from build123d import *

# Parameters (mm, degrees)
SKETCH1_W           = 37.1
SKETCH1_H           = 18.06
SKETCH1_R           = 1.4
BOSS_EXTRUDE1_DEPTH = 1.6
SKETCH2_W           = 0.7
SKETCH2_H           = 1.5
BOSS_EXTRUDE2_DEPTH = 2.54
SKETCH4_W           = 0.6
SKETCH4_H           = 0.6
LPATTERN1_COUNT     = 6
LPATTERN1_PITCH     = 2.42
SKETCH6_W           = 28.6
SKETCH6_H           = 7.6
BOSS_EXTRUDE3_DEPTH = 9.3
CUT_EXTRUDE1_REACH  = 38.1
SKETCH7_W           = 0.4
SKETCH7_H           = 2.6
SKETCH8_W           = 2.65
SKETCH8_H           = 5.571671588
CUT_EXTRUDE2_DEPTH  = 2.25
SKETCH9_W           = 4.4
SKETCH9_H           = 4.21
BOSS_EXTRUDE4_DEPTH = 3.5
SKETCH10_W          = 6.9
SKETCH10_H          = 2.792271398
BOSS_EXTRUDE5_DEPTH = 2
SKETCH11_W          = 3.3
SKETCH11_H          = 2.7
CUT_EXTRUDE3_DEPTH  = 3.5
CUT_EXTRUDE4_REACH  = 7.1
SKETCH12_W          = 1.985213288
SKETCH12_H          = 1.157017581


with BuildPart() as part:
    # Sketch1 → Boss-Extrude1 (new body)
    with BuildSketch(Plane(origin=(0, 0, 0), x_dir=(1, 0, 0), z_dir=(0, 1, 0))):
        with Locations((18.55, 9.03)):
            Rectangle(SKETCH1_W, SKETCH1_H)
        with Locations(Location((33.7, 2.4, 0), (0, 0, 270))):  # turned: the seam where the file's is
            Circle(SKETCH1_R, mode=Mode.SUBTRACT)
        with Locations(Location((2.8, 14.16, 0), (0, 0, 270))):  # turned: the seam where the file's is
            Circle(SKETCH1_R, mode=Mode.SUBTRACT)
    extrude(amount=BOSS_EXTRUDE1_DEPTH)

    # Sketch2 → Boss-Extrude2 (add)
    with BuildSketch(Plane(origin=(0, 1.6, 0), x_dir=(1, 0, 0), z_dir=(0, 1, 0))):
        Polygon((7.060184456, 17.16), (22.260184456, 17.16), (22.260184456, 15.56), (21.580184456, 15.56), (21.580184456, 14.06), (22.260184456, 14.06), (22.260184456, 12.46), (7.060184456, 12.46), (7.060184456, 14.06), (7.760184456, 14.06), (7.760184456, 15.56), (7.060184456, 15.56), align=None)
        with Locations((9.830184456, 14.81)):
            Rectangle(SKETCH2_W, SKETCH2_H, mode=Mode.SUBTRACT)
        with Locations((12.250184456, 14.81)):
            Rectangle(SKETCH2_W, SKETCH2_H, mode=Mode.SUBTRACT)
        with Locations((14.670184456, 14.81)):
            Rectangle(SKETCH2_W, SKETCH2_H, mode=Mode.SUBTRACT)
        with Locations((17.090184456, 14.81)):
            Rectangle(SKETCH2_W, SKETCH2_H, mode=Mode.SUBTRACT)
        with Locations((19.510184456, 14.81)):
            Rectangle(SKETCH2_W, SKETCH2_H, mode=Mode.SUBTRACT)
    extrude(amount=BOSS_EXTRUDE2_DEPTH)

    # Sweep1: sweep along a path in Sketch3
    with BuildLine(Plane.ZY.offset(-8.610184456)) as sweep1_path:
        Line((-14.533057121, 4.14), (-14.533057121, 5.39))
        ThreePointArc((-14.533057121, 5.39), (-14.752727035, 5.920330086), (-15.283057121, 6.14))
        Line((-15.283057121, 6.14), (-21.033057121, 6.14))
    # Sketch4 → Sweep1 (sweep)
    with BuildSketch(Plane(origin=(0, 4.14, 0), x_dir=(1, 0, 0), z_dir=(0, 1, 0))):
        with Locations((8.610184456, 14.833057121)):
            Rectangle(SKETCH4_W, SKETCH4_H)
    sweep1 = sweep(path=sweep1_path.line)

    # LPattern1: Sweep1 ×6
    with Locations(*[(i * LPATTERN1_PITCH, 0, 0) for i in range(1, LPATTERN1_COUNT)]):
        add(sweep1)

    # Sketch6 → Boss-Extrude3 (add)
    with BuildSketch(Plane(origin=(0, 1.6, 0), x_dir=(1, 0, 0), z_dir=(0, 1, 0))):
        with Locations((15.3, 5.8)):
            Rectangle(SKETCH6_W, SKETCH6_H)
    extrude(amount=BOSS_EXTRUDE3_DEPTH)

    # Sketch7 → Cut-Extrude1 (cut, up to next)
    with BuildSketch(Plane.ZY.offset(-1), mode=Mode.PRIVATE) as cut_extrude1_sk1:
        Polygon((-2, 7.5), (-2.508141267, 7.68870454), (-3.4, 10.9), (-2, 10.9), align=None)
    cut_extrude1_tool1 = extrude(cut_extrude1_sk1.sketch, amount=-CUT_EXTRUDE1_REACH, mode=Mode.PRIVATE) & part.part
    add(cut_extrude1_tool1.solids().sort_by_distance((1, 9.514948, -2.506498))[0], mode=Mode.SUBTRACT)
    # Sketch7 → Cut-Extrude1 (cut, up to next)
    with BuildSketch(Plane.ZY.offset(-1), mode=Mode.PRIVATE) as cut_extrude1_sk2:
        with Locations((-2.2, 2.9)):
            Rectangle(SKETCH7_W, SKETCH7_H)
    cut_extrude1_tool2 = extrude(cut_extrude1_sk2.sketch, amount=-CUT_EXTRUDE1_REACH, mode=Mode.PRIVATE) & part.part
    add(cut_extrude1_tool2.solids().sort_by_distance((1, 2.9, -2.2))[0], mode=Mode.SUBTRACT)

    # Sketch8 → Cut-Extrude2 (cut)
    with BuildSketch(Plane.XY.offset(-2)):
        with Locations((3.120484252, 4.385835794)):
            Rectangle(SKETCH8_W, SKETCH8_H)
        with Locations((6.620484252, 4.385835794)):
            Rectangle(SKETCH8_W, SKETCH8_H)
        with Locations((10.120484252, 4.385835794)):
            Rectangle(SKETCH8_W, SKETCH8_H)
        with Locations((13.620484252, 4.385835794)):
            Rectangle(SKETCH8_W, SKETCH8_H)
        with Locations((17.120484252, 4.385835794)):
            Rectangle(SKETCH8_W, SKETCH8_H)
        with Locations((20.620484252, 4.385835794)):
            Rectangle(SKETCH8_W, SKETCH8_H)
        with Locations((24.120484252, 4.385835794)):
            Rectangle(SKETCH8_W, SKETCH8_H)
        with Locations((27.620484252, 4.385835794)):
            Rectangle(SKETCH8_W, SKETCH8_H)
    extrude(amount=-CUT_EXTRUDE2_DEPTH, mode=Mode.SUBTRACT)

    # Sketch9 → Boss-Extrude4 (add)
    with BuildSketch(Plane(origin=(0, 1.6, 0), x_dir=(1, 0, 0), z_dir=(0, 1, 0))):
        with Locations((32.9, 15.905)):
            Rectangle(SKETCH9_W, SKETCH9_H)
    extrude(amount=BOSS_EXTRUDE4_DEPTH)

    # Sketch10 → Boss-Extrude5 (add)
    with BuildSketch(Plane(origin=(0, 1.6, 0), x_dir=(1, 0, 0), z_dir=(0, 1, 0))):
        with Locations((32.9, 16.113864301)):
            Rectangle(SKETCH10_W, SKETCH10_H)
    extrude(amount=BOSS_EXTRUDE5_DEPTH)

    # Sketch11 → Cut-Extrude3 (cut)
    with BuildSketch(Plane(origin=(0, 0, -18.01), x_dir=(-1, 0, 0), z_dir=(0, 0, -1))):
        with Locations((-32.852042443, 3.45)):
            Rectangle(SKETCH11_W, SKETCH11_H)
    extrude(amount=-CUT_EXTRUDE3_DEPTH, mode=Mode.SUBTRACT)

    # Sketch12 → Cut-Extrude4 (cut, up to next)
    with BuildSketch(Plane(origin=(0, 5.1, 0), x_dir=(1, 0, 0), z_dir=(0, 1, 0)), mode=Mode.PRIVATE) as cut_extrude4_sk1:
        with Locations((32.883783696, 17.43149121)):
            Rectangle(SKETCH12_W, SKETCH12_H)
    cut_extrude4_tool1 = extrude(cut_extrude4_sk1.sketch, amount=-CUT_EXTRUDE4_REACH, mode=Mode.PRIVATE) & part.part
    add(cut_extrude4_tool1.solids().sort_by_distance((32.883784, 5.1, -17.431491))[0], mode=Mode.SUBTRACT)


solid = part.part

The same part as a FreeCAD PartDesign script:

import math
import FreeCAD as App
import Part
import Sketcher
Q = App.Units.Quantity


def add_polygon(sketch, points):
    """Adds a closed chain of lines whose ends are joined by coincident constraints."""
    first, n = sketch.GeometryCount, len(points)
    for a, b in zip(points, points[1:] + points[:1]):
        sketch.addGeometry(Part.LineSegment(App.Vector(*a, 0), App.Vector(*b, 0)), False)
    for i in range(n):
        sketch.addConstraint(Sketcher.Constraint("Coincident", first + i, 2, first + (i + 1) % n, 1))

doc = App.newDocument("Part")
body = doc.addObject("PartDesign::Body", "Body")

sketch1 = body.newObject("Sketcher::SketchObject", "Sketch")
sketch1.AttachmentSupport = (doc.getObject("XZ_Plane"), [""])
sketch1.MapMode = "FlatFace"
add_polygon(sketch1, [(0, -18.06), (0, 0), (37.1, 0), (37.1, -18.06)])
sketch1.addGeometry(Part.Circle(App.Vector(33.7, -2.4, 0), App.Vector(0, 0, 1), 1.4), False)
sketch1.addGeometry(Part.Circle(App.Vector(2.8, -14.16, 0), App.Vector(0, 0, 1), 1.4), False)
sketch1.addConstraint([
    Sketcher.Constraint("Vertical", 0),
    Sketcher.Constraint("Horizontal", 1),
    Sketcher.Constraint("Vertical", 2),
    Sketcher.Constraint("Horizontal", 3),
    Sketcher.Constraint("Coincident", 0, 2, -1, 1),
    Sketcher.Constraint("Equal", 4, 5),
    Sketcher.Constraint("Diameter", 4, Q("2.8 mm")),
    Sketcher.Constraint("DistanceX", 1, 1, 1, 2, Q("37.1 mm")),
    Sketcher.Constraint("DistanceY", 0, 1, 0, 2, Q("18.06 mm")),
    Sketcher.Constraint("DistanceX", -1, 1, 4, 3, Q("33.7 mm")),
    Sketcher.Constraint("DistanceY", 4, 3, -1, 1, Q("2.4 mm")),
    Sketcher.Constraint("DistanceX", -1, 1, 5, 3, Q("2.8 mm")),
    Sketcher.Constraint("DistanceY", 2, 2, 5, 3, Q("3.9 mm")),
])
pad1 = body.newObject("PartDesign::Pad", "Pad")
pad1.Profile = sketch1
pad1.Length = 1.6
pad1.Reversed = True

sketch2 = body.newObject("Sketcher::SketchObject", "Sketch001")
sketch2.AttachmentSupport = (doc.getObject("XZ_Plane"), [""])
sketch2.MapMode = "FlatFace"
sketch2.AttachmentOffset = App.Placement(App.Vector(0, 0, -1.6), App.Rotation())
add_polygon(sketch2, [(22.260184, -17.16), (7.060184, -17.16), (7.060184, -15.56), (7.760184, -15.56), (7.760184, -14.06), (7.060184, -14.06), (7.060184, -12.46), (22.260184, -12.46), (22.260184, -14.06), (21.580184, -14.06), (21.580184, -15.56), (22.260184, -15.56)])
add_polygon(sketch2, [(19.160184, -14.06), (19.160184, -15.56), (19.860184, -15.56), (19.860184, -14.06)])
add_polygon(sketch2, [(16.740184, -14.06), (16.740184, -15.56), (17.440184, -15.56), (17.440184, -14.06)])
add_polygon(sketch2, [(14.320184, -14.06), (14.320184, -15.56), (15.020184, -15.56), (15.020184, -14.06)])
add_polygon(sketch2, [(11.900184, -14.06), (11.900184, -15.56), (12.600184, -15.56), (12.600184, -14.06)])
add_polygon(sketch2, [(9.480184, -14.06), (9.480184, -15.56), (10.180184, -15.56), (10.180184, -14.06)])
sketch2.addConstraint([
    Sketcher.Constraint("Horizontal", 0),
    Sketcher.Constraint("Vertical", 1),
    Sketcher.Constraint("Horizontal", 2),
    Sketcher.Constraint("Vertical", 3),
    Sketcher.Constraint("Horizontal", 4),
    Sketcher.Constraint("Vertical", 5),
    Sketcher.Constraint("Horizontal", 6),
    Sketcher.Constraint("Vertical", 7),
    Sketcher.Constraint("Horizontal", 8),
    Sketcher.Constraint("Vertical", 9),
    Sketcher.Constraint("Horizontal", 10),
    Sketcher.Constraint("Vertical", 11),
    Sketcher.Constraint("Vertical", 12),
    Sketcher.Constraint("Horizontal", 13),
    Sketcher.Constraint("Vertical", 14),
    Sketcher.Constraint("Horizontal", 15),
    Sketcher.Constraint("Vertical", 16),
    Sketcher.Constraint("Horizontal", 17),
    Sketcher.Constraint("Vertical", 18),
    Sketcher.Constraint("Horizontal", 19),
    Sketcher.Constraint("Vertical", 20),
    Sketcher.Constraint("Horizontal", 21),
    Sketcher.Constraint("Vertical", 22),
    Sketcher.Constraint("Horizontal", 23),
    Sketcher.Constraint("Vertical", 24),
    Sketcher.Constraint("Horizontal", 25),
    Sketcher.Constraint("Vertical", 26),
    Sketcher.Constraint("Horizontal", 27),
    Sketcher.Constraint("Vertical", 28),
    Sketcher.Constraint("Horizontal", 29),
    Sketcher.Constraint("Vertical", 30),
    Sketcher.Constraint("Horizontal", 31),
    Sketcher.Constraint("Horizontal", 4, 2, 7, 2),
    Sketcher.Constraint("Horizontal", 2, 2, 9, 2),
    Sketcher.Constraint("Horizontal", 10, 2, 12, 2),
    Sketcher.Constraint("Horizontal", 8, 2, 14, 2),
    Sketcher.Constraint("Horizontal", 13, 2, 16, 2),
    Sketcher.Constraint("Horizontal", 15, 2, 18, 2),
    Sketcher.Constraint("Horizontal", 17, 2, 20, 2),
    Sketcher.Constraint("Horizontal", 19, 2, 22, 2),
    Sketcher.Constraint("Horizontal", 21, 2, 24, 2),
    Sketcher.Constraint("Horizontal", 23, 2, 26, 2),
    Sketcher.Constraint("Horizontal", 25, 2, 28, 2),
    Sketcher.Constraint("Horizontal", 27, 2, 30, 2),
    Sketcher.Constraint("Vertical", 1, 2, 4, 2),
    Sketcher.Constraint("Vertical", 7, 2, 10, 2),
    Sketcher.Constraint("Equal", 4, 13),
    Sketcher.Constraint("Equal", 15, 17),
    Sketcher.Constraint("Equal", 19, 21),
    Sketcher.Constraint("Equal", 23, 25),
    Sketcher.Constraint("Equal", 27, 29),
    Sketcher.Constraint("Equal", 1, 5),
    Sketcher.Constraint("DistanceX", 0, 2, 0, 1, Q("15.2 mm")),
    Sketcher.Constraint("DistanceX", 2, 1, 2, 2, Q("0.7 mm")),
    Sketcher.Constraint("DistanceY", 1, 1, 1, 2, Q("1.6 mm")),
    Sketcher.Constraint("DistanceY", 3, 1, 3, 2, Q("1.5 mm")),
    Sketcher.Constraint("DistanceX", 8, 2, 8, 1, Q("0.68 mm")),
    Sketcher.Constraint("DistanceX", 12, 2, 10, 2, Q("3.1 mm")),
    Sketcher.Constraint("DistanceY", 0, 2, -1, 1, Q("17.16 mm")),
    Sketcher.Constraint("DistanceX", 16, 2, 12, 2, Q("2.42 mm")),
    Sketcher.Constraint("DistanceX", 20, 2, 16, 2, Q("2.42 mm")),
    Sketcher.Constraint("DistanceX", 24, 2, 20, 2, Q("2.42 mm")),
    Sketcher.Constraint("DistanceX", 2, 2, 28, 2, Q("1.72 mm")),
    Sketcher.Constraint("DistanceX", -1, 1, 0, 2, Q("7.060184 mm")),
])
pad2 = body.newObject("PartDesign::Pad", "Pad001")
pad2.Profile = sketch2
pad2.Length = 2.54
pad2.Reversed = True

sketch3 = body.newObject("Sketcher::SketchObject", "Sketch002")
sketch3.AttachmentSupport = (doc.getObject("XZ_Plane"), [""])
sketch3.MapMode = "FlatFace"
sketch3.AttachmentOffset = App.Placement(App.Vector(0, 0, -4.14), App.Rotation())
add_polygon(sketch3, [(8.310184, -15.133057), (8.310184, -14.533057), (8.910184, -14.533057), (8.910184, -15.133057)])
sketch3.addConstraint([
    Sketcher.Constraint("Vertical", 0),
    Sketcher.Constraint("Horizontal", 1),
    Sketcher.Constraint("Vertical", 2),
    Sketcher.Constraint("Horizontal", 3),
    Sketcher.Constraint("Equal", 3, 0),
    Sketcher.Constraint("DistanceX", 1, 1, 1, 2, Q("0.6 mm")),
    Sketcher.Constraint("DistanceX", -1, 1, 0, 2, Q("8.310184 mm")),
    Sketcher.Constraint("DistanceY", 0, 2, -1, 1, Q("14.533057 mm")),
])

sketch4 = body.newObject("Sketcher::SketchObject", "Sketch003")
sketch4.AttachmentSupport = (doc.getObject("YZ_Plane"), [""])
sketch4.MapMode = "FlatFace"
sketch4.AttachmentOffset = App.Placement(App.Vector(0, 0, 8.610184), App.Rotation())
sketch4.addGeometry([
    Part.LineSegment(App.Vector(4.14, -14.533057, 0), App.Vector(5.39, -14.533057, 0)),
    Part.ArcOfCircle(Part.Circle(App.Vector(5.39, -15.283057, 0), App.Vector(0, 0, 1), 0.75), math.radians(0), math.radians(90)),
    Part.LineSegment(App.Vector(6.14, -15.283057, 0), App.Vector(6.14, -21.033057, 0)),
], False)
sketch4.addConstraint([
    Sketcher.Constraint("Tangent", 0, 2, 1, 2),
    Sketcher.Constraint("Tangent", 1, 1, 2, 1),
    Sketcher.Constraint("Horizontal", 0),
    Sketcher.Constraint("Vertical", 2),
    Sketcher.Constraint("Radius", 1, Q("0.75 mm")),
    Sketcher.Constraint("DistanceX", 0, 1, 1, 1, Q("2 mm")),
    Sketcher.Constraint("DistanceY", 2, 2, 2, 1, Q("5.75 mm")),
    Sketcher.Constraint("DistanceX", -1, 1, 1, 3, Q("5.39 mm")),
    Sketcher.Constraint("DistanceY", 1, 3, -1, 1, Q("15.283057 mm")),
])
doc.recompute()

additivepipe = body.newObject("PartDesign::AdditivePipe", "AdditivePipe")
additivepipe.Profile = sketch3
additivepipe.Spine = (sketch4, ["Edge1", "Edge2", "Edge3"])
doc.recompute()

linearpattern = body.newObject("PartDesign::LinearPattern", "LinearPattern")
linearpattern.Originals = [additivepipe]
linearpattern.Direction = (doc.getObject("X_Axis"), [""])
linearpattern.Mode = "offset"
linearpattern.Offset = 2.42
linearpattern.Occurrences = 6
body.Tip = linearpattern

sketch5 = body.newObject("Sketcher::SketchObject", "Sketch004")
sketch5.AttachmentSupport = (doc.getObject("XZ_Plane"), [""])
sketch5.MapMode = "FlatFace"
sketch5.AttachmentOffset = App.Placement(App.Vector(0, 0, -1.6), App.Rotation())
add_polygon(sketch5, [(1, -9.6), (1, -2), (29.6, -2), (29.6, -9.6)])
sketch5.addConstraint([
    Sketcher.Constraint("Vertical", 0),
    Sketcher.Constraint("Horizontal", 1),
    Sketcher.Constraint("Vertical", 2),
    Sketcher.Constraint("Horizontal", 3),
    Sketcher.Constraint("DistanceX", 1, 1, 1, 2, Q("28.6 mm")),
    Sketcher.Constraint("DistanceY", 0, 1, 0, 2, Q("7.6 mm")),
    Sketcher.Constraint("DistanceX", -1, 1, 0, 2, Q("1 mm")),
    Sketcher.Constraint("DistanceY", 0, 2, -1, 1, Q("2 mm")),
])
pad3 = body.newObject("PartDesign::Pad", "Pad002")
pad3.Profile = sketch5
pad3.Length = 9.3
pad3.Reversed = True

sketch6 = body.newObject("Sketcher::SketchObject", "Sketch005")
sketch6.AttachmentSupport = (doc.getObject("YZ_Plane"), [""])
sketch6.MapMode = "FlatFace"
sketch6.AttachmentOffset = App.Placement(App.Vector(0, 0, 1), App.Rotation())
add_polygon(sketch6, [(7.688705, -2.508141), (7.5, -2), (10.9, -2), (10.9, -3.4)])
sketch6.addConstraint([
    Sketcher.Constraint("Horizontal", 1),
    Sketcher.Constraint("Vertical", 2),
    Sketcher.Constraint("DistanceX", 1, 1, 1, 2, Q("3.4 mm")),
    Sketcher.Constraint("DistanceY", 2, 2, 2, 1, Q("1.4 mm")),
    Sketcher.Constraint("DistanceY", 0, 2, -1, 1, Q("2 mm")),
    Sketcher.Constraint("DistanceX", -1, 1, 0, 2, Q("7.5 mm")),
    Sketcher.Constraint("Distance", 0, Q("0.542049 mm")),
    Sketcher.Constraint("Distance", 3, Q("3.332841 mm")),
])
pocket1 = body.newObject("PartDesign::Pocket", "Pocket")
pocket1.Profile = sketch6
pocket1.Type = "UpToFirst"
pocket1.Reversed = True

sketch7 = body.newObject("Sketcher::SketchObject", "Sketch006")
sketch7.AttachmentSupport = (doc.getObject("YZ_Plane"), [""])
sketch7.MapMode = "FlatFace"
sketch7.AttachmentOffset = App.Placement(App.Vector(0, 0, 1), App.Rotation())
add_polygon(sketch7, [(4.2, -2.4), (1.6, -2.4), (1.6, -2), (4.2, -2)])
sketch7.addConstraint([
    Sketcher.Constraint("Horizontal", 0),
    Sketcher.Constraint("Vertical", 1),
    Sketcher.Constraint("Horizontal", 2),
    Sketcher.Constraint("Vertical", 3),
    Sketcher.Constraint("DistanceX", 0, 2, 0, 1, Q("2.6 mm")),
    Sketcher.Constraint("DistanceY", 1, 1, 1, 2, Q("0.4 mm")),
    Sketcher.Constraint("DistanceY", 1, 2, -1, 1, Q("2 mm")),
    Sketcher.Constraint("DistanceX", -1, 1, 0, 2, Q("1.6 mm")),
])
pocket2 = body.newObject("PartDesign::Pocket", "Pocket001")
pocket2.Profile = sketch7
pocket2.Type = "UpToFirst"
pocket2.Reversed = True

sketch8 = body.newObject("Sketcher::SketchObject", "Sketch007")
sketch8.AttachmentSupport = (doc.getObject("XY_Plane"), [""])
sketch8.MapMode = "FlatFace"
sketch8.AttachmentOffset = App.Placement(App.Vector(0, 0, -2), App.Rotation())
add_polygon(sketch8, [(1.795484, 7.171672), (1.795484, 1.6), (4.445484, 1.6), (4.445484, 7.171672)])
add_polygon(sketch8, [(5.295484, 7.171672), (5.295484, 1.6), (7.945484, 1.6), (7.945484, 7.171672)])
add_polygon(sketch8, [(8.795484, 7.171672), (8.795484, 1.6), (11.445484, 1.6), (11.445484, 7.171672)])
add_polygon(sketch8, [(12.295484, 7.171672), (12.295484, 1.6), (14.945484, 1.6), (14.945484, 7.171672)])
add_polygon(sketch8, [(15.795484, 7.171672), (15.795484, 1.6), (18.445484, 1.6), (18.445484, 7.171672)])
add_polygon(sketch8, [(19.295484, 7.171672), (19.295484, 1.6), (21.945484, 1.6), (21.945484, 7.171672)])
add_polygon(sketch8, [(22.795484, 7.171672), (22.795484, 1.6), (25.445484, 1.6), (25.445484, 7.171672)])
add_polygon(sketch8, [(26.295484, 7.171672), (26.295484, 1.6), (28.945484, 1.6), (28.945484, 7.171672)])
sketch8.addConstraint([
    Sketcher.Constraint("Vertical", 0),
    Sketcher.Constraint("Horizontal", 1),
    Sketcher.Constraint("Vertical", 2),
    Sketcher.Constraint("Horizontal", 3),
    Sketcher.Constraint("Vertical", 4),
    Sketcher.Constraint("Horizontal", 5),
    Sketcher.Constraint("Vertical", 6),
    Sketcher.Constraint("Horizontal", 7),
    Sketcher.Constraint("Vertical", 8),
    Sketcher.Constraint("Horizontal", 9),
    Sketcher.Constraint("Vertical", 10),
    Sketcher.Constraint("Horizontal", 11),
    Sketcher.Constraint("Vertical", 12),
    Sketcher.Constraint("Horizontal", 13),
    Sketcher.Constraint("Vertical", 14),
    Sketcher.Constraint("Horizontal", 15),
    Sketcher.Constraint("Vertical", 16),
    Sketcher.Constraint("Horizontal", 17),
    Sketcher.Constraint("Vertical", 18),
    Sketcher.Constraint("Horizontal", 19),
    Sketcher.Constraint("Vertical", 20),
    Sketcher.Constraint("Horizontal", 21),
    Sketcher.Constraint("Vertical", 22),
    Sketcher.Constraint("Horizontal", 23),
    Sketcher.Constraint("Vertical", 24),
    Sketcher.Constraint("Horizontal", 25),
    Sketcher.Constraint("Vertical", 26),
    Sketcher.Constraint("Horizontal", 27),
    Sketcher.Constraint("Vertical", 28),
    Sketcher.Constraint("Horizontal", 29),
    Sketcher.Constraint("Vertical", 30),
    Sketcher.Constraint("Horizontal", 31),
    Sketcher.Constraint("Horizontal", 1, 2, 4, 2),
    Sketcher.Constraint("Horizontal", 3, 2, 6, 2),
    Sketcher.Constraint("Horizontal", 5, 2, 8, 2),
    Sketcher.Constraint("Horizontal", 7, 2, 10, 2),
    Sketcher.Constraint("Horizontal", 9, 2, 12, 2),
    Sketcher.Constraint("Horizontal", 11, 2, 14, 2),
    Sketcher.Constraint("Horizontal", 13, 2, 16, 2),
    Sketcher.Constraint("Horizontal", 15, 2, 18, 2),
    Sketcher.Constraint("Horizontal", 17, 2, 20, 2),
    Sketcher.Constraint("Horizontal", 19, 2, 22, 2),
    Sketcher.Constraint("Horizontal", 21, 2, 24, 2),
    Sketcher.Constraint("Horizontal", 23, 2, 26, 2),
    Sketcher.Constraint("Horizontal", 25, 2, 28, 2),
    Sketcher.Constraint("Horizontal", 27, 2, 30, 2),
    Sketcher.Constraint("Equal", 3, 5),
    Sketcher.Constraint("Equal", 7, 9),
    Sketcher.Constraint("Equal", 11, 13),
    Sketcher.Constraint("Equal", 15, 17),
    Sketcher.Constraint("Equal", 19, 21),
    Sketcher.Constraint("Equal", 23, 25),
    Sketcher.Constraint("Equal", 27, 29),
    Sketcher.Constraint("DistanceX", 1, 2, 9, 2, Q("7 mm")),
    Sketcher.Constraint("DistanceX", 5, 2, 13, 2, Q("7 mm")),
    Sketcher.Constraint("DistanceX", 9, 2, 17, 2, Q("7 mm")),
    Sketcher.Constraint("DistanceX", 13, 2, 21, 2, Q("7 mm")),
    Sketcher.Constraint("DistanceX", 17, 2, 25, 2, Q("7 mm")),
    Sketcher.Constraint("DistanceX", 21, 2, 29, 2, Q("7 mm")),
    Sketcher.Constraint("DistanceX", 1, 1, 1, 2, Q("2.65 mm")),
    Sketcher.Constraint("DistanceY", -1, 1, 0, 2, Q("1.6 mm")),
    Sketcher.Constraint("DistanceX", 0, 2, 4, 2, Q("3.5 mm")),
    Sketcher.Constraint("DistanceY", 0, 2, 0, 1, Q("5.571672 mm")),
    Sketcher.Constraint("DistanceX", -1, 1, 0, 2, Q("1.795484 mm")),
])
pocket3 = body.newObject("PartDesign::Pocket", "Pocket002")
pocket3.Profile = sketch8
pocket3.Length = 2.25

sketch9 = body.newObject("Sketcher::SketchObject", "Sketch008")
sketch9.AttachmentSupport = (doc.getObject("XZ_Plane"), [""])
sketch9.MapMode = "FlatFace"
sketch9.AttachmentOffset = App.Placement(App.Vector(0, 0, -1.6), App.Rotation())
add_polygon(sketch9, [(30.7, -18.01), (30.7, -13.8), (35.1, -13.8), (35.1, -18.01)])
sketch9.addConstraint([
    Sketcher.Constraint("Vertical", 0),
    Sketcher.Constraint("Horizontal", 1),
    Sketcher.Constraint("Vertical", 2),
    Sketcher.Constraint("Horizontal", 3),
    Sketcher.Constraint("DistanceX", 1, 1, 1, 2, Q("4.4 mm")),
    Sketcher.Constraint("DistanceY", 0, 1, 0, 2, Q("4.21 mm")),
    Sketcher.Constraint("DistanceX", -1, 1, 0, 2, Q("30.7 mm")),
    Sketcher.Constraint("DistanceY", 0, 2, -1, 1, Q("13.8 mm")),
])
pad4 = body.newObject("PartDesign::Pad", "Pad003")
pad4.Profile = sketch9
pad4.Length = 3.5
pad4.Reversed = True

sketch10 = body.newObject("Sketcher::SketchObject", "Sketch009")
sketch10.AttachmentSupport = (doc.getObject("XZ_Plane"), [""])
sketch10.MapMode = "FlatFace"
sketch10.AttachmentOffset = App.Placement(App.Vector(0, 0, -1.6), App.Rotation())
add_polygon(sketch10, [(29.45, -17.51), (29.45, -14.717729), (36.35, -14.717729), (36.35, -17.51)])
sketch10.addConstraint([
    Sketcher.Constraint("Vertical", 0),
    Sketcher.Constraint("Horizontal", 1),
    Sketcher.Constraint("Vertical", 2),
    Sketcher.Constraint("Horizontal", 3),
    Sketcher.Constraint("DistanceX", 1, 1, 1, 2, Q("6.9 mm")),
    Sketcher.Constraint("DistanceX", -1, 1, 0, 2, Q("29.45 mm")),
    Sketcher.Constraint("DistanceY", 2, 2, -1, 1, Q("17.51 mm")),
    Sketcher.Constraint("DistanceY", 0, 1, 0, 2, Q("2.792271 mm")),
])
pad5 = body.newObject("PartDesign::Pad", "Pad004")
pad5.Profile = sketch10
pad5.Length = 2
pad5.Reversed = True

sketch11 = body.newObject("Sketcher::SketchObject", "Sketch010")
sketch11.AttachmentSupport = (doc.getObject("XY_Plane"), [""])
sketch11.MapMode = "FlatFace"
sketch11.AttachmentOffset = App.Placement(App.Vector(0, 0, -18.01), App.Rotation())
add_polygon(sketch11, [(34.502042, 4.8), (34.502042, 2.1), (31.202042, 2.1), (31.202042, 4.8)])
sketch11.addConstraint([
    Sketcher.Constraint("Vertical", 0),
    Sketcher.Constraint("Horizontal", 1),
    Sketcher.Constraint("Vertical", 2),
    Sketcher.Constraint("Horizontal", 3),
    Sketcher.Constraint("DistanceX", 1, 2, 1, 1, Q("3.3 mm")),
    Sketcher.Constraint("DistanceY", 0, 2, 0, 1, Q("2.7 mm")),
    Sketcher.Constraint("DistanceY", -1, 1, 0, 2, Q("2.1 mm")),
    Sketcher.Constraint("DistanceX", -1, 1, 0, 2, Q("34.502042 mm")),
])
pocket4 = body.newObject("PartDesign::Pocket", "Pocket003")
pocket4.Profile = sketch11
pocket4.Length = 3.5
pocket4.Reversed = True

sketch12 = body.newObject("Sketcher::SketchObject", "Sketch011")
sketch12.AttachmentSupport = (doc.getObject("XZ_Plane"), [""])
sketch12.MapMode = "FlatFace"
sketch12.AttachmentOffset = App.Placement(App.Vector(0, 0, -5.1), App.Rotation())
add_polygon(sketch12, [(31.891177, -18.01), (31.891177, -16.852982), (33.87639, -16.852982), (33.87639, -18.01)])
sketch12.addConstraint([
    Sketcher.Constraint("Vertical", 0),
    Sketcher.Constraint("Horizontal", 1),
    Sketcher.Constraint("Vertical", 2),
    Sketcher.Constraint("Horizontal", 3),
    Sketcher.Constraint("DistanceY", 2, 2, -1, 1, Q("18.01 mm")),
    Sketcher.Constraint("DistanceX", 1, 1, 1, 2, Q("1.985213 mm")),
    Sketcher.Constraint("DistanceY", 0, 1, 0, 2, Q("1.157018 mm")),
    Sketcher.Constraint("DistanceX", -1, 1, 1, 2, Q("33.87639 mm")),
])
pocket5 = body.newObject("PartDesign::Pocket", "Pocket004")
pocket5.Profile = sketch12
pocket5.Type = "UpToFirst"
pocket5.Reversed = True

doc.recompute()
